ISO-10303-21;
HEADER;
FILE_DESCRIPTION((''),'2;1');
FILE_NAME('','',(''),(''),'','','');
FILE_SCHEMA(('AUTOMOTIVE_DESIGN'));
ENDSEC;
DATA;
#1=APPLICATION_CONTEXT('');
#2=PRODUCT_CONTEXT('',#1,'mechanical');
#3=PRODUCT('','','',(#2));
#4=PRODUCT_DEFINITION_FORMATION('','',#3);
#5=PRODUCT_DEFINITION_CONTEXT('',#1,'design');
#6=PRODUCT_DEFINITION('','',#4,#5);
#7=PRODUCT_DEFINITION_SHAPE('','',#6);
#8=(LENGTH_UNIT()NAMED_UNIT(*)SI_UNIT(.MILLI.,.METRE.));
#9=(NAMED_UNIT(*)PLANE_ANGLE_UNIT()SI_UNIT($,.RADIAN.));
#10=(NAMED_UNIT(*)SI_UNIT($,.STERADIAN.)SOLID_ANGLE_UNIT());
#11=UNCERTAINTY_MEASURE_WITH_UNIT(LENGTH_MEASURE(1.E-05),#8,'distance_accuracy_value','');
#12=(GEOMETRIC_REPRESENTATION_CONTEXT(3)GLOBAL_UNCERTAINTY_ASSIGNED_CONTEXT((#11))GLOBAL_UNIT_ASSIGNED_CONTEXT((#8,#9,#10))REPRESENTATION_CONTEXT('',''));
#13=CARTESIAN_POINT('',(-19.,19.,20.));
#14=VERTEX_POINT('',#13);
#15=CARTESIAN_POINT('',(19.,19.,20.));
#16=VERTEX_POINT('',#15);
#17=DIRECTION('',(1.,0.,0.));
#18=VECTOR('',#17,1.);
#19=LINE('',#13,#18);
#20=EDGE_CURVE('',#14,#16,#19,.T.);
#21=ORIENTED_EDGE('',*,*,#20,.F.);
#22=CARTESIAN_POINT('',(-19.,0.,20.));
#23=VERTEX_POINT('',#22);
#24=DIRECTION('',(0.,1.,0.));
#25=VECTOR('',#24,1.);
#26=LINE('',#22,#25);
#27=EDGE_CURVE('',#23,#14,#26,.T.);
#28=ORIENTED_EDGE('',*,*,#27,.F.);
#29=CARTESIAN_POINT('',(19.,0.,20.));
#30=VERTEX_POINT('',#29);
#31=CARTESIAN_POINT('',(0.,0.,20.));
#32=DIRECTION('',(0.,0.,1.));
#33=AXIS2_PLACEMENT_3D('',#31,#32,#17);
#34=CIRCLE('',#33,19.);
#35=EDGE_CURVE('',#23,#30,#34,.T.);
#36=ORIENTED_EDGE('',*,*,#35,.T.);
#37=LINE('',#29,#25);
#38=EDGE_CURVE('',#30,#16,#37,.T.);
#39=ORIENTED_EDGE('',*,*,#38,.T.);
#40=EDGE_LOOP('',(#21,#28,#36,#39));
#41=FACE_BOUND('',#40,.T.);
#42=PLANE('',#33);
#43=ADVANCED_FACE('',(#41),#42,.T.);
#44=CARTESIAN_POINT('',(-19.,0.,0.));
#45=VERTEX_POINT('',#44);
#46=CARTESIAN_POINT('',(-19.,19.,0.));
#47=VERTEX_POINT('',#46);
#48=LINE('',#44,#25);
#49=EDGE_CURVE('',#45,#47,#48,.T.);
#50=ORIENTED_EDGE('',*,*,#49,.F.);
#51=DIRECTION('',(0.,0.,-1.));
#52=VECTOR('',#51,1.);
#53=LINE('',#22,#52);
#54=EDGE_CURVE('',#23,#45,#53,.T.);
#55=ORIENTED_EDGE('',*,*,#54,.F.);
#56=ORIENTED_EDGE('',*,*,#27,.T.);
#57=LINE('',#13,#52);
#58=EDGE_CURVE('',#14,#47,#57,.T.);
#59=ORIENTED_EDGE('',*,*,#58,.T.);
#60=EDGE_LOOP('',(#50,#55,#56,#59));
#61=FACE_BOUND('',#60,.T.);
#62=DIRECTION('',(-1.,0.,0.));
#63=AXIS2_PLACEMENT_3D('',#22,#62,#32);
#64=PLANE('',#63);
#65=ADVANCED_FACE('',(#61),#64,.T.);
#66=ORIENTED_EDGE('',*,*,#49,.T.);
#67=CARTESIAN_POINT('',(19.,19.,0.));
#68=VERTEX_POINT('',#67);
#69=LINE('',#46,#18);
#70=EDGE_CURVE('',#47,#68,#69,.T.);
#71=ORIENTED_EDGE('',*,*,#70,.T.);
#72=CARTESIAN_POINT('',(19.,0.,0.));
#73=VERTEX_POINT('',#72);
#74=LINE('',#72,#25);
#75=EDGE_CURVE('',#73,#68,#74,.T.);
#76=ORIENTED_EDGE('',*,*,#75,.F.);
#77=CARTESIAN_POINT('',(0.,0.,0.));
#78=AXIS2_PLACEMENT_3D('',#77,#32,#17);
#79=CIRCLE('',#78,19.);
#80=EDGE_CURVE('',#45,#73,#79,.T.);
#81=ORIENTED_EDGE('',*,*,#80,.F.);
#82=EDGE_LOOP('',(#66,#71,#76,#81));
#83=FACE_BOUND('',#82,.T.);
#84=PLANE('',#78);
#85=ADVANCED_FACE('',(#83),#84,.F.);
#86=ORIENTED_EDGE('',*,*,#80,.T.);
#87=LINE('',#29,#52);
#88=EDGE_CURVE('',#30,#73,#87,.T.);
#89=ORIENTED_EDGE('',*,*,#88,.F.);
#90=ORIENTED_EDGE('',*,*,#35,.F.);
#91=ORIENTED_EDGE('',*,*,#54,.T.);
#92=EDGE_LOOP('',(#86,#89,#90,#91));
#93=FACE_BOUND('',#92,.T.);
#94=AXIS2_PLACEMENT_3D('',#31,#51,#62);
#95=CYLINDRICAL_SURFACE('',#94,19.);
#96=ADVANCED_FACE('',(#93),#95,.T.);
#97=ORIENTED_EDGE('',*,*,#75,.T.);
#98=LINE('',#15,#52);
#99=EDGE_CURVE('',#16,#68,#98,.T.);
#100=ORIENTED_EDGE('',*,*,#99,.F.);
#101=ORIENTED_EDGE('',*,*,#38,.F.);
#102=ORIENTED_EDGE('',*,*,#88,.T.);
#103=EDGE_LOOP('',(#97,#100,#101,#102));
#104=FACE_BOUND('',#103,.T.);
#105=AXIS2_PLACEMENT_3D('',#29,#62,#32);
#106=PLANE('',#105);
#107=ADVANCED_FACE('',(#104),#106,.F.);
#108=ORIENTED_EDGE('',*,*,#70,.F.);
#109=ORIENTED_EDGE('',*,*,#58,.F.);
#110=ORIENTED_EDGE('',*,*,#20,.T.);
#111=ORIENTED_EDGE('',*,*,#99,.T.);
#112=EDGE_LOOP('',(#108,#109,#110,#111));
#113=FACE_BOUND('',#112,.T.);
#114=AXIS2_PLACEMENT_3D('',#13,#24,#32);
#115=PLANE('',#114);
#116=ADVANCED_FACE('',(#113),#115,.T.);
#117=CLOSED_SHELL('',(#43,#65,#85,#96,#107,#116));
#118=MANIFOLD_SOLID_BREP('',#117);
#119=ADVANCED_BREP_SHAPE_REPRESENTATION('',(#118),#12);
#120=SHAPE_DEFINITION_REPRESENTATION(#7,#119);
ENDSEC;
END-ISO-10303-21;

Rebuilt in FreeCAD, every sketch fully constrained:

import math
import FreeCAD as App
import Part
import Sketcher

V = App.Vector

doc = App.newDocument("Part")
body = doc.addObject("PartDesign::Body", "Body")

sketch1 = doc.addObject("Sketcher::SketchObject", "Sketch")
body.addObject(sketch1)
sketch1.AttachmentSupport = (doc.XY_Plane, [""])
sketch1.MapMode = "FlatFace"
sketch1.addGeometry(Part.LineSegment(V(-19, 19, 0), V(-19, 0, 0)), False)
sketch1.addGeometry(Part.ArcOfCircle(Part.Circle(V(0, 0, 0), V(0, 0, 1), 19), math.radians(180), math.radians(360)), False)
sketch1.addGeometry(Part.LineSegment(V(19, 0, 0), V(19, 19, 0)), False)
sketch1.addGeometry(Part.LineSegment(V(19, 19, 0), V(-19, 19, 0)), False)
sketch1.addConstraint(Sketcher.Constraint("Tangent", 0, 2, 1, 1))
sketch1.addConstraint(Sketcher.Constraint("Tangent", 1, 2, 2, 1))
sketch1.addConstraint(Sketcher.Constraint("Coincident", 2, 2, 3, 1))
sketch1.addConstraint(Sketcher.Constraint("Coincident", 3, 2, 0, 1))
sketch1.addConstraint(Sketcher.Constraint("Vertical", 0))
sketch1.addConstraint(Sketcher.Constraint("Vertical", 2))
sketch1.addConstraint(Sketcher.Constraint("Horizontal", 3))
sketch1.addConstraint(Sketcher.Constraint("Coincident", 1, 3, -1, 1))
sketch1.addConstraint(Sketcher.Constraint("Radius", 1, 19.0))
sketch1.addConstraint(Sketcher.Constraint("DistanceY", 0, 2, 0, 1, 19.0))
pad1 = doc.addObject("PartDesign::Pad", "Pad")
body.addObject(pad1)
pad1.Profile = sketch1
pad1.Length = 20

doc.recompute()
